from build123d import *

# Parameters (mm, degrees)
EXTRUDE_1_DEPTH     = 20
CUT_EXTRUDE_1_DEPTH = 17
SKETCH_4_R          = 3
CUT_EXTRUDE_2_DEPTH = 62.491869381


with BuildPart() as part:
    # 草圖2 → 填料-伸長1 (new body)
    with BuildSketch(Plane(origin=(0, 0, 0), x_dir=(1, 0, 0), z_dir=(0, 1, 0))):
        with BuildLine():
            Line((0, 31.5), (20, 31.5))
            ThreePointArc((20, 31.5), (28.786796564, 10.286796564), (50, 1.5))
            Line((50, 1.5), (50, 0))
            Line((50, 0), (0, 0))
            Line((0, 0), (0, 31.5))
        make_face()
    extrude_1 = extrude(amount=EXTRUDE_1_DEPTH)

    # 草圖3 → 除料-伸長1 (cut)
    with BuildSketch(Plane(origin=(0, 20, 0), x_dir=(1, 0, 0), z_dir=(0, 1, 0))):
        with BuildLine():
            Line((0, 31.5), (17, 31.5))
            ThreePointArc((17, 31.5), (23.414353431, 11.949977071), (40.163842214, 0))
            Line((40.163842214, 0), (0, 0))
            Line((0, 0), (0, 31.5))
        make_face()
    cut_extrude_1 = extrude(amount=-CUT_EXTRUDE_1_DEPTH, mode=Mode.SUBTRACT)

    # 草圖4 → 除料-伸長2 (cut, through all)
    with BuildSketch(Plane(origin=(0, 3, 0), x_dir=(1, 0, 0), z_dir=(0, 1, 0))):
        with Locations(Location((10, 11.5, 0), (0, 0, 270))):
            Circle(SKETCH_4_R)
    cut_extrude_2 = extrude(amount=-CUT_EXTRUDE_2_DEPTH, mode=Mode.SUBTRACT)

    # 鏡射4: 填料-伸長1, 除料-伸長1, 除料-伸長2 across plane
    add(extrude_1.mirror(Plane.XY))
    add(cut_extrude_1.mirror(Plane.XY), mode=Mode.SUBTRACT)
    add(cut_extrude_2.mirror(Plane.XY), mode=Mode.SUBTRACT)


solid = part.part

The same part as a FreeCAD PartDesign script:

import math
import FreeCAD as App
import Part
import Sketcher
from FreeCAD import Vector

doc = App.newDocument("Part")
body = doc.addObject("PartDesign::Body", "Body")

sketch1 = doc.addObject("Sketcher::SketchObject", "Sketch")
body.addObject(sketch1)
sketch1.AttachmentSupport = (doc.XZ_Plane, [""])
sketch1.MapMode = "FlatFace"
sketch1.addGeometry(Part.LineSegment(Vector(20, -31.5, 0), Vector(0, -31.5, 0)), False)
sketch1.addGeometry(Part.LineSegment(Vector(0, -31.5, 0), Vector(0, 0, 0)), False)
sketch1.addGeometry(Part.LineSegment(Vector(0, 0, 0), Vector(50, 0, 0)), False)
sketch1.addGeometry(Part.LineSegment(Vector(50, 0, 0), Vector(50, -1.5, 0)), False)
sketch1.addGeometry(Part.ArcOfCircle(Part.Circle(Vector(50, -31.5, 0), Vector(0, 0, 1), 30), math.radians(90), math.radians(180)), False)
sketch1.addConstraint(Sketcher.Constraint("Coincident", 0, 2, 1, 1))
sketch1.addConstraint(Sketcher.Constraint("Coincident", 1, 2, 2, 1))
sketch1.addConstraint(Sketcher.Constraint("Coincident", 2, 2, 3, 1))
sketch1.addConstraint(Sketcher.Constraint("Coincident", 3, 2, 4, 1))
sketch1.addConstraint(Sketcher.Constraint("Coincident", 4, 2, 0, 1))
sketch1.addConstraint(Sketcher.Constraint("Horizontal", 0))
sketch1.addConstraint(Sketcher.Constraint("Vertical", 1))
sketch1.addConstraint(Sketcher.Constraint("Horizontal", 2))
sketch1.addConstraint(Sketcher.Constraint("Vertical", 3))
sketch1.addConstraint(Sketcher.Constraint("Coincident", 1, 2, -1, 1))
sketch1.addConstraint(Sketcher.Constraint("Horizontal", 4, 3, 0, 2))
sketch1.addConstraint(Sketcher.Constraint("Vertical", 4, 3, 2, 2))
sketch1.addConstraint(Sketcher.Constraint("Radius", 4, 30.0))
sketch1.addConstraint(Sketcher.Constraint("DistanceX", 0, 2, 0, 1, 20.0))
sketch1.addConstraint(Sketcher.Constraint("DistanceY", 1, 1, 1, 2, 31.5))
pad1 = doc.addObject("PartDesign::Pad", "Pad")
body.addObject(pad1)
pad1.Profile = sketch1
pad1.Length = 20
pad1.Reversed = True

sketch2 = doc.addObject("Sketcher::SketchObject", "Sketch001")
body.addObject(sketch2)
sketch2.AttachmentSupport = (doc.XZ_Plane, [""])
sketch2.MapMode = "FlatFace"
sketch2.AttachmentOffset = App.Placement(Vector(0, 0, -20), App.Rotation())
sketch2.addGeometry(Part.LineSegment(Vector(17, -31.5, 0), Vector(0, -31.5, 0)), False)
sketch2.addGeometry(Part.LineSegment(Vector(0, -31.5, 0), Vector(0, 0, 0)), False)
sketch2.addGeometry(Part.LineSegment(Vector(0, 0, 0), Vector(40.163842, 0, 0)), False)
sketch2.addGeometry(Part.ArcOfCircle(Part.Circle(Vector(50, -31.5, 0), Vector(0, 0, 1), 33), math.radians(107.341443), math.radians(180)), False)
sketch2.addConstraint(Sketcher.Constraint("Coincident", 0, 2, 1, 1))
sketch2.addConstraint(Sketcher.Constraint("Coincident", 1, 2, 2, 1))
sketch2.addConstraint(Sketcher.Constraint("Coincident", 2, 2, 3, 1))
sketch2.addConstraint(Sketcher.Constraint("Coincident", 3, 2, 0, 1))
sketch2.addConstraint(Sketcher.Constraint("Horizontal", 0))
sketch2.addConstraint(Sketcher.Constraint("Vertical", 1))
sketch2.addConstraint(Sketcher.Constraint("Horizontal", 2))
sketch2.addConstraint(Sketcher.Constraint("Coincident", 1, 2, -1, 1))
sketch2.addConstraint(Sketcher.Constraint("Horizontal", 3, 3, 0, 2))
sketch2.addConstraint(Sketcher.Constraint("Radius", 3, 33.0))
sketch2.addConstraint(Sketcher.Constraint("DistanceX", 0, 2, 0, 1, 17.0))
sketch2.addConstraint(Sketcher.Constraint("DistanceY", 1, 1, 1, 2, 31.5))
pocket1 = doc.addObject("PartDesign::Pocket", "Pocket")
body.addObject(pocket1)
pocket1.Profile = sketch2
pocket1.Length = 17
pocket1.Reversed = True

sketch3 = doc.addObject("Sketcher::SketchObject", "Sketch002")
body.addObject(sketch3)
sketch3.AttachmentSupport = (doc.XZ_Plane, [""])
sketch3.MapMode = "FlatFace"
sketch3.AttachmentOffset = App.Placement(Vector(0, 0, -3), App.Rotation())
sketch3.addGeometry(Part.Circle(Vector(10, -11.5, 0), Vector(0, 0, 1), 3), False)
sketch3.addConstraint(Sketcher.Constraint("Diameter", 0, 6.0))
sketch3.addConstraint(Sketcher.Constraint("DistanceX", -1, 1, 0, 3, 10.0))
sketch3.addConstraint(Sketcher.Constraint("DistanceY", 0, 3, -1, 1, 11.5))
pocket2 = doc.addObject("PartDesign::Pocket", "Pocket001")
body.addObject(pocket2)
pocket2.Profile = sketch3
pocket2.Type = "ThroughAll"
pocket2.Reversed = True
doc.recompute()

mirrored = doc.addObject("PartDesign::Mirrored", "Mirrored")
body.addObject(mirrored)
mirrored.Originals = [pad1, pocket1, pocket2]
mirrored.MirrorPlane = (doc.XY_Plane, [""])
body.Tip = mirrored

doc.recompute()
